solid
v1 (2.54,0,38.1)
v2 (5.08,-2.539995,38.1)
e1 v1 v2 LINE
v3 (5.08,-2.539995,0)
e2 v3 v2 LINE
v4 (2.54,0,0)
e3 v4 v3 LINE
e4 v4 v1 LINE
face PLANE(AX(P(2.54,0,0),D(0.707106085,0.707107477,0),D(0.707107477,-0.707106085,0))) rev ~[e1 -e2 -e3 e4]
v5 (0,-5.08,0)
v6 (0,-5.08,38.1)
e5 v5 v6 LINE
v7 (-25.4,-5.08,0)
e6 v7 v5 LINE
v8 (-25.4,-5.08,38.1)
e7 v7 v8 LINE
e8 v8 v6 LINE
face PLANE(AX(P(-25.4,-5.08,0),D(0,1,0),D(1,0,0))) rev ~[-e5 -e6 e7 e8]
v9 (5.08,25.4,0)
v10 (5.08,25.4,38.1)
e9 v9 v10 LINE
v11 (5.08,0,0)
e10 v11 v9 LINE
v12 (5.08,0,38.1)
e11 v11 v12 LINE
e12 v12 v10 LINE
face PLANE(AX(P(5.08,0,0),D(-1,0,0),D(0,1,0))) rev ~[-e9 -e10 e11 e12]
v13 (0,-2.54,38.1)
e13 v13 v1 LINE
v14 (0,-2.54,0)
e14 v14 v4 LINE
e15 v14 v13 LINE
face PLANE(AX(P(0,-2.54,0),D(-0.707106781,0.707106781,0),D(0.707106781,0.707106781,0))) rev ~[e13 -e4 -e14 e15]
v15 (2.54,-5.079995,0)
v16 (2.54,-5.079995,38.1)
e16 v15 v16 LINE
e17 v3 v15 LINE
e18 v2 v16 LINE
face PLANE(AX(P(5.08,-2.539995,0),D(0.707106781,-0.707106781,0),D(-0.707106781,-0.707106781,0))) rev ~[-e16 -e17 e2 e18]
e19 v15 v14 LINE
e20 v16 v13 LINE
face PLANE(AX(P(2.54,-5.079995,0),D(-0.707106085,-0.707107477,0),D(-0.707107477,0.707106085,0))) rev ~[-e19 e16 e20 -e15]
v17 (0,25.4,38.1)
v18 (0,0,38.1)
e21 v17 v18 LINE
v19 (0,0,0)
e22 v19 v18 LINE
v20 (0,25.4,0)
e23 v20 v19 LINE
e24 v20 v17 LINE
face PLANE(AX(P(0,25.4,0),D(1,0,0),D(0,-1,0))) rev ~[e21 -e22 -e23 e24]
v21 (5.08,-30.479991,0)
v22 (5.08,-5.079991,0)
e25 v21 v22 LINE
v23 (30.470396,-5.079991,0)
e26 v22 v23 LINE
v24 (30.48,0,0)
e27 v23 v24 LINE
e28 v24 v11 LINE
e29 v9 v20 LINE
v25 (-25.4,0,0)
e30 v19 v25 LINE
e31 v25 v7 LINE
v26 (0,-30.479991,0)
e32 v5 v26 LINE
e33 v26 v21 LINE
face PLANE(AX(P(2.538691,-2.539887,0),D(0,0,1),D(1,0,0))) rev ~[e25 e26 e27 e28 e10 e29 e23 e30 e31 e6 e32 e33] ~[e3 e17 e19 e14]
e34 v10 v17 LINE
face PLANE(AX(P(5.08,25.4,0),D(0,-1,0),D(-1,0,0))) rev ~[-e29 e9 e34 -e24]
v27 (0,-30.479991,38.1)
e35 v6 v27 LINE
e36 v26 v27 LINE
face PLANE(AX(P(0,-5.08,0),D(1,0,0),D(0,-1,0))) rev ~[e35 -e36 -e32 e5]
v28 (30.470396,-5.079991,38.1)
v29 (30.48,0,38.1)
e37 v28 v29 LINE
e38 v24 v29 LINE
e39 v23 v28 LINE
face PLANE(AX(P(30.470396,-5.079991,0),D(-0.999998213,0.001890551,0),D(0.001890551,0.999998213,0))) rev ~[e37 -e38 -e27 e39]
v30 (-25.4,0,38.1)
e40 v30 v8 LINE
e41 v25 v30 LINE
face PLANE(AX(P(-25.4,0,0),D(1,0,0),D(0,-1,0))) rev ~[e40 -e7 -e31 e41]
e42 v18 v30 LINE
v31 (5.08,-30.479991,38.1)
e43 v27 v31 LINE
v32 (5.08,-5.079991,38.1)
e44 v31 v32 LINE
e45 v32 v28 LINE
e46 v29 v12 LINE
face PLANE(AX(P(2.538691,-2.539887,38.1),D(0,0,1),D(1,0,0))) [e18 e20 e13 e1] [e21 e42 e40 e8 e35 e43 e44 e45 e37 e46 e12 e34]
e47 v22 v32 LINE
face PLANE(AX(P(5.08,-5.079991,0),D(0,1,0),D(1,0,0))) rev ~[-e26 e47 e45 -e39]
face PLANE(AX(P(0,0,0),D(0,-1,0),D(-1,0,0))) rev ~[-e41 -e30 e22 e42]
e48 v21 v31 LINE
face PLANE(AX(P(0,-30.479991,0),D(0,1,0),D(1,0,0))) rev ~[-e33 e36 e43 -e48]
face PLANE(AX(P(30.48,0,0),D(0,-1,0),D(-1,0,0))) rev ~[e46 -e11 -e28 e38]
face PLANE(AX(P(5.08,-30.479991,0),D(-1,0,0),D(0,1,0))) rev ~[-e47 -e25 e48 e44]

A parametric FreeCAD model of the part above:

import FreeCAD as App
import Part
import Sketcher

V = App.Vector
Q = App.Units.Quantity


def add_polygon(sketch, points):
    """Adds a closed chain of lines whose ends are joined by coincident constraints."""
    first, n = sketch.GeometryCount, len(points)
    for a, b in zip(points, points[1:] + points[:1]):
        sketch.addGeometry(Part.LineSegment(App.Vector(*a, 0), App.Vector(*b, 0)), False)
    for i in range(n):
        sketch.addConstraint(Sketcher.Constraint("Coincident", first + i, 2, first + (i + 1) % n, 1))

doc = App.newDocument("Part")
body = doc.addObject("PartDesign::Body", "Body")

sketch1 = doc.addObject("Sketcher::SketchObject", "Sketch")
body.addObject(sketch1)
sketch1.AttachmentSupport = (doc.XY_Plane, [""])
sketch1.MapMode = "FlatFace"
add_polygon(sketch1, [(0, 25.4), (0, 0), (-25.4, 0), (-25.4, -5.08), (0, -5.08), (0, -30.479991), (5.08, -30.479991), (5.08, -5.079991), (30.470396, -5.079991), (30.48, 0), (5.08, 0), (5.08, 25.4)])
add_polygon(sketch1, [(2.54, -5.079995), (0, -2.54), (2.54, 0), (5.08, -2.539995)])
sketch1.addConstraint([
    Sketcher.Constraint("Vertical", 0),
    Sketcher.Constraint("Horizontal", 1),
    Sketcher.Constraint("Vertical", 2),
    Sketcher.Constraint("Horizontal", 3),
    Sketcher.Constraint("Vertical", 4),
    Sketcher.Constraint("Horizontal", 5),
    Sketcher.Constraint("Vertical", 6),
    Sketcher.Constraint("Horizontal", 7),
    Sketcher.Constraint("Horizontal", 9),
    Sketcher.Constraint("Vertical", 10),
    Sketcher.Constraint("Horizontal", 11),
    Sketcher.Constraint("Coincident", 0, 2, -1, 1),
    Sketcher.Constraint("PointOnObject", 3, 2, -2),
    Sketcher.Constraint("PointOnObject", 8, 2, -1),
    Sketcher.Constraint("PointOnObject", 12, 2, -2),
    Sketcher.Constraint("PointOnObject", 13, 2, -1),
    Sketcher.Constraint("Perpendicular", 12, 13),
    Sketcher.Constraint("Perpendicular", 13, 14),
    Sketcher.Constraint("Perpendicular", 14, 15),
    Sketcher.Constraint("Vertical", 6, 2, 9, 2),
    Sketcher.Constraint("Vertical", 10, 2, 14, 2),
    Sketcher.Constraint("Vertical", 13, 2, 15, 2),
    Sketcher.Constraint("Equal", 3, 9),
    Sketcher.Constraint("Equal", 9, 0),
    Sketcher.Constraint("Equal", 11, 2),
    Sketcher.Constraint("Equal", 0, 6),
    Sketcher.Constraint("DistanceX", 1, 2, 1, 1, Q("1 in")),
    Sketcher.Constraint("DistanceX", 5, 1, 5, 2, Q("0.2 in")),
    Sketcher.Constraint("Angle", 13, Q("45 deg")),
    Sketcher.Constraint("Distance", 8, Q("0.2 in")),
    Sketcher.Constraint("DistanceX", 7, 1, 7, 2, Q("25.390396 mm")),
])
pad1 = doc.addObject("PartDesign::Pad", "Pad")
body.addObject(pad1)
pad1.Profile = sketch1
pad1.Length = Q("1.5 in")

doc.recompute()
